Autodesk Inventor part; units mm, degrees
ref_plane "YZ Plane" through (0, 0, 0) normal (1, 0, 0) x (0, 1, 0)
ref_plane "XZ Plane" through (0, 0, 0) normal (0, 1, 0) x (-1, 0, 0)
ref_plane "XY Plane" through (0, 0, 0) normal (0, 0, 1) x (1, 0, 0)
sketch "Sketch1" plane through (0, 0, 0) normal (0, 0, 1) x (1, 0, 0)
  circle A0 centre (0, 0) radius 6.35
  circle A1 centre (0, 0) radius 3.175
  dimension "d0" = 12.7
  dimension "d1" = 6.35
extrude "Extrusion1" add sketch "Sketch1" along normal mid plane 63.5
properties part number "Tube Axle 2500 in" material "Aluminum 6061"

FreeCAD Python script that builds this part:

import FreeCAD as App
import Part
import Sketcher

V = App.Vector
Q = App.Units.Quantity

doc = App.newDocument("Part")
body = doc.addObject("PartDesign::Body", "Body")

sketch1 = doc.addObject("Sketcher::SketchObject", "Sketch")
body.addObject(sketch1)
sketch1.AttachmentSupport = (doc.XY_Plane, [""])
sketch1.MapMode = "FlatFace"
sketch1.addGeometry([
    Part.Circle(V(0, 0, 0), V(0, 0, 1), 6.3),
    Part.Circle(V(0, 0, 0), V(0, 0, 1), 3.2),
], False)
sketch1.addConstraint([
    Sketcher.Constraint("Coincident", 0, 3, -1, 1),
    Sketcher.Constraint("Coincident", 1, 3, -1, 1),
    Sketcher.Constraint("Diameter", 0, Q("0.5 in")),
    Sketcher.Constraint("Diameter", 1, Q("0.25 in")),
])
pad1 = doc.addObject("PartDesign::Pad", "Pad")
body.addObject(pad1)
pad1.Profile = sketch1
pad1.Length = Q("2.5 in")
pad1.Midplane = True

doc.recompute()
